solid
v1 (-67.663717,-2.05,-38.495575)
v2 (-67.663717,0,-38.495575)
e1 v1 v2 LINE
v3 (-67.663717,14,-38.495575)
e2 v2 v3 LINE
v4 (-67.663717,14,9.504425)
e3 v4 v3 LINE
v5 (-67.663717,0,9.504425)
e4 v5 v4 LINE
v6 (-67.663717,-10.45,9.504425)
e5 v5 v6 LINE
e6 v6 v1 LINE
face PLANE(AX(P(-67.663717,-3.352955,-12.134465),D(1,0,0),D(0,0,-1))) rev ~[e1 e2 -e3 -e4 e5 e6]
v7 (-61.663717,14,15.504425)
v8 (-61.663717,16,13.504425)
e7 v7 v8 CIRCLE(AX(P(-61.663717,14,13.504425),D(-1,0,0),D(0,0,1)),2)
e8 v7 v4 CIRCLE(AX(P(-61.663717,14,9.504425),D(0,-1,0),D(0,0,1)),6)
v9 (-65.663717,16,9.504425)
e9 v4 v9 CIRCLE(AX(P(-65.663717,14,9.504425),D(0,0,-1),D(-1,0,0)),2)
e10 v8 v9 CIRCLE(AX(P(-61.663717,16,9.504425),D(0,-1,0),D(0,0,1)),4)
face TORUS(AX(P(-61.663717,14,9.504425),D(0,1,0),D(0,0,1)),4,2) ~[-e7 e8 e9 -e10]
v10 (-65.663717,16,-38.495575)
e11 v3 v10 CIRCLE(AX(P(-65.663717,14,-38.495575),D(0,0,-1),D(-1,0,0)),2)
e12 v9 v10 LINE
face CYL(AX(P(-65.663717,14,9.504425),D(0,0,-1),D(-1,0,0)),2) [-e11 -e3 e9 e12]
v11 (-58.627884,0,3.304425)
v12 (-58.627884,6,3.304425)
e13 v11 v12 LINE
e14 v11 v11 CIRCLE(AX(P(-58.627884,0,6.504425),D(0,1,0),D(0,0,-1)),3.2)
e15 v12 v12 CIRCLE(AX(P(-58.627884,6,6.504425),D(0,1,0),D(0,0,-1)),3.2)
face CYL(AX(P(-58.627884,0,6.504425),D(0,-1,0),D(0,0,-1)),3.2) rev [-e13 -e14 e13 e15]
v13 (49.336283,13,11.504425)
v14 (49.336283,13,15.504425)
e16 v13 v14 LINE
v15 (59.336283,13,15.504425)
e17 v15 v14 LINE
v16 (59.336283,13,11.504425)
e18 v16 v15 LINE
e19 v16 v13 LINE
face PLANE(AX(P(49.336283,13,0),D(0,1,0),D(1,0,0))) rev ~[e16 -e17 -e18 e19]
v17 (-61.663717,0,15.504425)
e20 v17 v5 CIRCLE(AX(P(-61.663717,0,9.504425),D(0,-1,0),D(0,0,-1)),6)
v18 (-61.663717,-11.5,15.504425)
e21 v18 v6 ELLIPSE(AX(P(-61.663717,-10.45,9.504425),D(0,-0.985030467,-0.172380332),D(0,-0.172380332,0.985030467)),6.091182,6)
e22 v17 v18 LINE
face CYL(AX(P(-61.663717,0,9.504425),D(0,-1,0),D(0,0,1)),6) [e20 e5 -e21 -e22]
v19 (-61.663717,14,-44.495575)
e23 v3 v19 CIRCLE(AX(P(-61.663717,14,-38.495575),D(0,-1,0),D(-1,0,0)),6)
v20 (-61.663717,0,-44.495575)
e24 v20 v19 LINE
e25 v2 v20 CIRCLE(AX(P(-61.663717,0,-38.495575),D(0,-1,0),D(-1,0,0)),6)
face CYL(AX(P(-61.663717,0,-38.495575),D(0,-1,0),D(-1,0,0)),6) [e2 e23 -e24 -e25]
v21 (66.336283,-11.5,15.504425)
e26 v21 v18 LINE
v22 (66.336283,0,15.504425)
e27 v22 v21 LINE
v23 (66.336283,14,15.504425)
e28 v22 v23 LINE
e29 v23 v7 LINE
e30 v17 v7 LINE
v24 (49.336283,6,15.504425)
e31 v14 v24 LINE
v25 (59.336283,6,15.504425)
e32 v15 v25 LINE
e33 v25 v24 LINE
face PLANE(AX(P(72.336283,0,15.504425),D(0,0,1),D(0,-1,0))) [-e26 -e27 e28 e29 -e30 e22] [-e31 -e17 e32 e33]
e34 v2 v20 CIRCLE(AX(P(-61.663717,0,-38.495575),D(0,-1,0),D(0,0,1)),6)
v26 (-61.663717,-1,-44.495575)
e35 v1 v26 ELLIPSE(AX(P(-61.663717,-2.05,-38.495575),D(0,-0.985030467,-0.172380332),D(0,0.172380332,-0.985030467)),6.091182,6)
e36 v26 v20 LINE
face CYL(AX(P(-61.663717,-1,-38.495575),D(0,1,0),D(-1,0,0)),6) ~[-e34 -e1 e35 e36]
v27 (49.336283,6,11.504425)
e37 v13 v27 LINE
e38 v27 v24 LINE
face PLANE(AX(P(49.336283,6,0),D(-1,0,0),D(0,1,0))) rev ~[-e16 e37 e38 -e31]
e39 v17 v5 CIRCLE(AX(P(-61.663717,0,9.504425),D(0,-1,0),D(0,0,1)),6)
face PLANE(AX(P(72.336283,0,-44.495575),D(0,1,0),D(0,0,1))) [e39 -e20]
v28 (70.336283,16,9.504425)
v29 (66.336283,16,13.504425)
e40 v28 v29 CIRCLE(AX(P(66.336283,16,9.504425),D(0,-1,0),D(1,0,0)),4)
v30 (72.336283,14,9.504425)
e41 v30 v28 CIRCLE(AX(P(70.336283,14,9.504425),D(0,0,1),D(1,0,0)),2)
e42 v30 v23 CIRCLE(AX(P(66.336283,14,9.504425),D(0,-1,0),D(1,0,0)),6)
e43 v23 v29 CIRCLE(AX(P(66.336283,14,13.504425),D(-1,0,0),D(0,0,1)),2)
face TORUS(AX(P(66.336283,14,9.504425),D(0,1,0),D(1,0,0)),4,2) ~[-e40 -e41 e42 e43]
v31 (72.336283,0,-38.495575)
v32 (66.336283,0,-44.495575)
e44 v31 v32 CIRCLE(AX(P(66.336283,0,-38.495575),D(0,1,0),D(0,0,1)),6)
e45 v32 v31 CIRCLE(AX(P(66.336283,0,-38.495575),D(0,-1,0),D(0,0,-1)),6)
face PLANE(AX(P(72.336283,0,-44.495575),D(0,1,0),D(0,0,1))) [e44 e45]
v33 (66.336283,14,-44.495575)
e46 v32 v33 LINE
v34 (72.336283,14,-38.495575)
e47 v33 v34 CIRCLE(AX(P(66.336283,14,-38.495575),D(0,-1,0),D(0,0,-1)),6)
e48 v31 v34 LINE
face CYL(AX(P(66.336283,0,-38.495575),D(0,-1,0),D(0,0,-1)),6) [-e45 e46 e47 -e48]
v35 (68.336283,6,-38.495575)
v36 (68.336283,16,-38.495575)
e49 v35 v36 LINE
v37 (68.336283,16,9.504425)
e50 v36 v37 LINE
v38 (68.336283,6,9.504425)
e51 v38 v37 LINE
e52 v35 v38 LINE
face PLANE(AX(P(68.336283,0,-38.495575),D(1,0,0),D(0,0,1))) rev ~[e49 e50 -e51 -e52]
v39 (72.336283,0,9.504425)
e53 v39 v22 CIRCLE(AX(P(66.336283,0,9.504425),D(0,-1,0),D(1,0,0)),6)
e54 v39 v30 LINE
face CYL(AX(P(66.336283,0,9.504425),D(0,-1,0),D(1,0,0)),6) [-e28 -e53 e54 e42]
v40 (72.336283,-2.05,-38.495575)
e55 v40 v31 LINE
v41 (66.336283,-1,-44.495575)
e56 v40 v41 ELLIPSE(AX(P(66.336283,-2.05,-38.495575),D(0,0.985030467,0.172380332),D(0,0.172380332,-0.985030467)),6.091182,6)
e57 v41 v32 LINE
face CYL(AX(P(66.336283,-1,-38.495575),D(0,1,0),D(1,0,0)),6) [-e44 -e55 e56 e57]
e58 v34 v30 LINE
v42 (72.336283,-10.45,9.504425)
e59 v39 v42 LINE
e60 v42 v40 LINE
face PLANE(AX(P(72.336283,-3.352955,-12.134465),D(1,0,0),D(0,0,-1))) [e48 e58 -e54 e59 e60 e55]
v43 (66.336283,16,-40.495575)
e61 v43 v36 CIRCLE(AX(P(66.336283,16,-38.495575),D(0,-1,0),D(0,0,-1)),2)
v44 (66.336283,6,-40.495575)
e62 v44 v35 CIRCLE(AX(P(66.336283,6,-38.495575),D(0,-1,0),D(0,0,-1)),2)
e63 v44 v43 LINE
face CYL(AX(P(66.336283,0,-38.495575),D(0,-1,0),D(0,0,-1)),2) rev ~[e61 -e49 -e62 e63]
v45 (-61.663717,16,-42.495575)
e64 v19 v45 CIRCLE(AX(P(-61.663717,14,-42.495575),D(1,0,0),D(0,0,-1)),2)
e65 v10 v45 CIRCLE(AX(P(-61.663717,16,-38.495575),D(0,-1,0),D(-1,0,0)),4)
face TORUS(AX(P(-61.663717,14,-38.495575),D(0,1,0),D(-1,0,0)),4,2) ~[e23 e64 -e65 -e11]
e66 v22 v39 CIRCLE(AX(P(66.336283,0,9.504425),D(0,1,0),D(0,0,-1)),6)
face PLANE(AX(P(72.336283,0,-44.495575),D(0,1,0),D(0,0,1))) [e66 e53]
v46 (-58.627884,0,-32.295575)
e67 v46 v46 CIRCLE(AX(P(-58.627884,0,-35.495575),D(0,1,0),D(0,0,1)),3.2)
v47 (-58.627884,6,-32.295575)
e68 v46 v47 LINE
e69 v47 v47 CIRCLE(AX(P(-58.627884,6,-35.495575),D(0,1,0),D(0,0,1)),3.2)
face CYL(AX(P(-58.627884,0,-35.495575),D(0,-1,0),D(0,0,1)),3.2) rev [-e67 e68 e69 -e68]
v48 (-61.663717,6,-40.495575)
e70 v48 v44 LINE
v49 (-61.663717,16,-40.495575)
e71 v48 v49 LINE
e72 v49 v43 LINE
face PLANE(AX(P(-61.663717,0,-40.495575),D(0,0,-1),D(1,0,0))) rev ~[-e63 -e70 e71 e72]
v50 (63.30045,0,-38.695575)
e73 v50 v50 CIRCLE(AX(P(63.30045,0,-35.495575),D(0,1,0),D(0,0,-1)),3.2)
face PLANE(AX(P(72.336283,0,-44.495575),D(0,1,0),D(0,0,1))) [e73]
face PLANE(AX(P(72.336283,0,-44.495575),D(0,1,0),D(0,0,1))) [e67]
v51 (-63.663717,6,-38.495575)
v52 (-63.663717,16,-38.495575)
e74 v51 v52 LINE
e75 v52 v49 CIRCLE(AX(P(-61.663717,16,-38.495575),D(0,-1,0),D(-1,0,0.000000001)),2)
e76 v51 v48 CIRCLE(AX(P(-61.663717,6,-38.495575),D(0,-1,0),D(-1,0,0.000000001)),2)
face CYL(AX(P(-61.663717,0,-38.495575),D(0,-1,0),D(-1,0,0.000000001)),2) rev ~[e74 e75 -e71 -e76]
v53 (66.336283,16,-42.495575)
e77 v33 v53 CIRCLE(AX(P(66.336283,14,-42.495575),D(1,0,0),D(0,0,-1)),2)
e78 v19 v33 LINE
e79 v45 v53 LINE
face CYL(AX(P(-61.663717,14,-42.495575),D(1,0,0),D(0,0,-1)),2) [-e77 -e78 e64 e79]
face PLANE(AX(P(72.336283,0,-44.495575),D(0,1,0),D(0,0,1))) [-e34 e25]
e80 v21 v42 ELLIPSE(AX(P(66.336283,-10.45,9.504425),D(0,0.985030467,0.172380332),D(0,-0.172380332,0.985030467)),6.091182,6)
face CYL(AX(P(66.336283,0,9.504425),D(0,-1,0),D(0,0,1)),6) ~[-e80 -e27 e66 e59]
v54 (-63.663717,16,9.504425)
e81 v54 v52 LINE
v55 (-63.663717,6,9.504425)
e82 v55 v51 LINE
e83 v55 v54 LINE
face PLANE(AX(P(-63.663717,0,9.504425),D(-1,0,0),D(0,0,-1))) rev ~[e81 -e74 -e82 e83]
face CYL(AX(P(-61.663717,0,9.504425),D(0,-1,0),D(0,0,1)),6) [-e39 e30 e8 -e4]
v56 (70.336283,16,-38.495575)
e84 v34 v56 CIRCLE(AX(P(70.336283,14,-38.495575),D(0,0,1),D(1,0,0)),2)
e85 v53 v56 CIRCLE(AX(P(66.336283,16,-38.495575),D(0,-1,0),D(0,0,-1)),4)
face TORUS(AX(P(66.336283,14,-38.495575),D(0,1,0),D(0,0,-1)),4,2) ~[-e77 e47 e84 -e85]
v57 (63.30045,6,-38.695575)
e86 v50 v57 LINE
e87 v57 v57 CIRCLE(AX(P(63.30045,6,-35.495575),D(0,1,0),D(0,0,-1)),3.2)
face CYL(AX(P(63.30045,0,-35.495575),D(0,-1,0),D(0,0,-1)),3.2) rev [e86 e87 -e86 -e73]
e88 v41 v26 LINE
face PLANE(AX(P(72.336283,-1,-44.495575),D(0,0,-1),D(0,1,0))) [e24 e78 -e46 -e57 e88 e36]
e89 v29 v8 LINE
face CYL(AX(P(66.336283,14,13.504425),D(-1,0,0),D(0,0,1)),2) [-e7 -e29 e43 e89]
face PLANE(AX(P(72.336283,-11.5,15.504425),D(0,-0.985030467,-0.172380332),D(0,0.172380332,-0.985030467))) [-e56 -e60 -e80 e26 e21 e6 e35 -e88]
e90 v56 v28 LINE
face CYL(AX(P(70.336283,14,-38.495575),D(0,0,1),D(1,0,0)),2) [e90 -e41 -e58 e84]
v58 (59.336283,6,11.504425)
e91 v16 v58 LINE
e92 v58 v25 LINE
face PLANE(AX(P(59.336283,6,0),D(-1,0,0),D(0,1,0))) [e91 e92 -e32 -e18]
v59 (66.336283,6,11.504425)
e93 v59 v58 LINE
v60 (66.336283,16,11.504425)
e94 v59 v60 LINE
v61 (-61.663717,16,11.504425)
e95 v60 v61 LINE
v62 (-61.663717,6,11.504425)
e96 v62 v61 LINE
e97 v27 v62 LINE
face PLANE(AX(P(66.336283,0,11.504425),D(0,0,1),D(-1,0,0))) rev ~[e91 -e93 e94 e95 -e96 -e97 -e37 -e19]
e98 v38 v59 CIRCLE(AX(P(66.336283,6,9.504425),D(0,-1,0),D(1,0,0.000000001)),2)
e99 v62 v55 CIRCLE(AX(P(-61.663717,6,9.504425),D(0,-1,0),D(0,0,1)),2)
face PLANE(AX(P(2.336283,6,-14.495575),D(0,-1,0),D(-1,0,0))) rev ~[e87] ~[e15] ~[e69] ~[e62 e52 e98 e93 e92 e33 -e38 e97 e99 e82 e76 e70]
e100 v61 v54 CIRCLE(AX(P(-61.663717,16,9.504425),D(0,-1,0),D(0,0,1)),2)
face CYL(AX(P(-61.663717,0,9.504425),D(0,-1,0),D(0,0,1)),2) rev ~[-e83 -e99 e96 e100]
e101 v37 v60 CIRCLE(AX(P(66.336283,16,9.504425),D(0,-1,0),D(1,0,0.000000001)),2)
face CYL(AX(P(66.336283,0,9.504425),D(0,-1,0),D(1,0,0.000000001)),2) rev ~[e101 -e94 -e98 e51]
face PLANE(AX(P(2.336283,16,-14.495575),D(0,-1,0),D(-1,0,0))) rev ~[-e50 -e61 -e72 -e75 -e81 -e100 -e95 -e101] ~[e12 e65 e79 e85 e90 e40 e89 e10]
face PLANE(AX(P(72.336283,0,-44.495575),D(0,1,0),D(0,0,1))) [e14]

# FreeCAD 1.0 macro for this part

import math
import FreeCAD as App
import Part
import Sketcher


def edges_at(feature, points):
    """Names of the edges that pass closest to the given points."""
    edges = feature.Shape.Edges
    near = lambda p: min(range(len(edges)), key=lambda i: edges[i].distToShape(Part.Vertex(*p))[0])
    return sorted({f"Edge{near(p) + 1}" for p in points})

doc = App.newDocument("Part")
params = doc.addObject("Spreadsheet::Sheet", "Params")
for row, (alias, value) in enumerate([
    ("sketch1_radius", "6 mm"),
    ("sketch1_radius2", "2 mm"),
    ("sketch1_width", "128 mm"),
    ("sketch1_height", "48 mm"),
    ("pad1_length", "16 mm"),
    ("sketch2_radius", "2 mm"),
    ("sketch2_diameter", "6.4 mm"),
    ("sketch2_width", "128 mm"),
    ("sketch2_height", "48 mm"),
    ("pad2_length", "6 mm"),
    ("sketch3_width", "10 mm"),
    ("sketch3_height", "7 mm"),
    ("pocket1_length", "28 mm"),
    ("fillet_radius", "2 mm"),
    ("sketch4_width", "1 mm"),
    ("sketch4_height", "60 mm"),
    ("sketch4_width2", "11.5 mm"),
    ("pad3_length", "140 mm"),
    ("fillet2_radius", "6 mm"),
], start=1):
    params.set(f"A{row}", alias)
    params.set(f"B{row}", "=" + value)
    params.setAlias(f"B{row}", alias)

body = doc.addObject("PartDesign::Body", "Body")

# Sketch on XZ plane
sketch1 = body.newObject("Sketcher::SketchObject", "Sketch")
sketch1.AttachmentSupport = (doc.getObject("XZ_Plane"), [""])
sketch1.MapMode = "FlatFace"
sketch1.addGeometry(Part.LineSegment(App.Vector(66.3, -44.5, 0), App.Vector(-61.7, -44.5, 0)), False)
sketch1.addGeometry(Part.ArcOfCircle(Part.Circle(App.Vector(-61.7, -38.5, 0), App.Vector(0, 0, 1), 6), math.radians(180), math.radians(270)), False)
sketch1.addGeometry(Part.LineSegment(App.Vector(-67.7, -38.5, 0), App.Vector(-67.7, 9.5, 0)), False)
sketch1.addGeometry(Part.ArcOfCircle(Part.Circle(App.Vector(-61.7, 9.5, 0), App.Vector(0, 0, 1), 6), math.radians(90), math.radians(180)), False)
sketch1.addGeometry(Part.LineSegment(App.Vector(-61.7, 15.5, 0), App.Vector(66.3, 15.5, 0)), False)
sketch1.addGeometry(Part.ArcOfCircle(Part.Circle(App.Vector(66.3, 9.5, 0), App.Vector(0, 0, 1), 6), math.radians(0), math.radians(90)), False)
sketch1.addGeometry(Part.LineSegment(App.Vector(72.3, 9.5, 0), App.Vector(72.3, -38.5, 0)), False)
sketch1.addGeometry(Part.ArcOfCircle(Part.Circle(App.Vector(66.3, -38.5, 0), App.Vector(0, 0, 1), 6), math.radians(-90), math.radians(0)), False)
sketch1.addGeometry(Part.LineSegment(App.Vector(-61.7, -40.5, 0), App.Vector(66.3, -40.5, 0)), False)
sketch1.addGeometry(Part.ArcOfCircle(Part.Circle(App.Vector(66.3, -38.5, 0), App.Vector(0, 0, 1), 2), math.radians(-90), math.radians(0)), False)
sketch1.addGeometry(Part.LineSegment(App.Vector(68.3, -38.5, 0), App.Vector(68.3, 9.5, 0)), False)
sketch1.addGeometry(Part.ArcOfCircle(Part.Circle(App.Vector(66.3, 9.5, 0), App.Vector(0, 0, 1), 2), math.radians(0), math.radians(90)), False)
sketch1.addGeometry(Part.LineSegment(App.Vector(66.3, 11.5, 0), App.Vector(-61.7, 11.5, 0)), False)
sketch1.addGeometry(Part.ArcOfCircle(Part.Circle(App.Vector(-61.7, 9.5, 0), App.Vector(0, 0, 1), 2), math.radians(90), math.radians(180)), False)
sketch1.addGeometry(Part.LineSegment(App.Vector(-63.7, 9.5, 0), App.Vector(-63.7, -38.5, 0)), False)
sketch1.addGeometry(Part.ArcOfCircle(Part.Circle(App.Vector(-61.7, -38.5, 0), App.Vector(0, 0, 1), 2), math.radians(180), math.radians(270)), False)
sketch1.addConstraint(Sketcher.Constraint("Tangent", 0, 2, 1, 2))
sketch1.addConstraint(Sketcher.Constraint("Tangent", 1, 1, 2, 1))
sketch1.addConstraint(Sketcher.Constraint("Tangent", 2, 2, 3, 2))
sketch1.addConstraint(Sketcher.Constraint("Tangent", 3, 1, 4, 1))
sketch1.addConstraint(Sketcher.Constraint("Tangent", 4, 2, 5, 2))
sketch1.addConstraint(Sketcher.Constraint("Tangent", 5, 1, 6, 1))
sketch1.addConstraint(Sketcher.Constraint("Tangent", 6, 2, 7, 2))
sketch1.addConstraint(Sketcher.Constraint("Tangent", 7, 1, 0, 1))
sketch1.addConstraint(Sketcher.Constraint("Tangent", 8, 2, 9, 1))
sketch1.addConstraint(Sketcher.Constraint("Tangent", 9, 2, 10, 1))
sketch1.addConstraint(Sketcher.Constraint("Tangent", 10, 2, 11, 1))
sketch1.addConstraint(Sketcher.Constraint("Tangent", 11, 2, 12, 1))
sketch1.addConstraint(Sketcher.Constraint("Tangent", 12, 2, 13, 1))
sketch1.addConstraint(Sketcher.Constraint("Tangent", 13, 2, 14, 1))
sketch1.addConstraint(Sketcher.Constraint("Tangent", 14, 2, 15, 1))
sketch1.addConstraint(Sketcher.Constraint("Tangent", 15, 2, 8, 1))
sketch1.addConstraint(Sketcher.Constraint("Horizontal", 0))
sketch1.addConstraint(Sketcher.Constraint("Vertical", 2))
sketch1.addConstraint(Sketcher.Constraint("Horizontal", 4))
sketch1.addConstraint(Sketcher.Constraint("Vertical", 6))
sketch1.addConstraint(Sketcher.Constraint("Horizontal", 8))
sketch1.addConstraint(Sketcher.Constraint("Vertical", 10))
sketch1.addConstraint(Sketcher.Constraint("Horizontal", 12))
sketch1.addConstraint(Sketcher.Constraint("Vertical", 14))
sketch1.addConstraint(Sketcher.Constraint("Coincident", 9, 3, 7, 3))
sketch1.addConstraint(Sketcher.Constraint("Coincident", 11, 3, 5, 3))
sketch1.addConstraint(Sketcher.Constraint("Coincident", 13, 3, 3, 3))
sketch1.addConstraint(Sketcher.Constraint("Equal", 1, 3))
sketch1.addConstraint(Sketcher.Constraint("Equal", 3, 5))
sketch1.addConstraint(Sketcher.Constraint("Equal", 5, 7))
sketch1.addConstraint(Sketcher.Constraint("Equal", 13, 15))
sketch1.addConstraint(Sketcher.Constraint("Radius", 1, 6.0))
sketch1.addConstraint(Sketcher.Constraint("Radius", 9, 2.0))
sketch1.addConstraint(Sketcher.Constraint("DistanceX", 0, 2, 0, 1, 128.0))
sketch1.addConstraint(Sketcher.Constraint("DistanceY", 2, 1, 2, 2, 48.0))
sketch1.addConstraint(Sketcher.Constraint("DistanceX", 1, 3, -1, 1, 61.663717))
sketch1.addConstraint(Sketcher.Constraint("DistanceY", 1, 3, -1, 1, 38.495575))
sketch1.setExpression("Constraints[31]", "Params.sketch1_radius")
sketch1.setExpression("Constraints[32]", "Params.sketch1_radius2")
sketch1.setExpression("Constraints[33]", "Params.sketch1_width")
sketch1.setExpression("Constraints[34]", "Params.sketch1_height")
pad1 = body.newObject("PartDesign::Pad", "Pad")
pad1.Profile = sketch1
pad1.setExpression("Length", "Params.pad1_length")
pad1.Reversed = True

# Sketch on XZ plane
sketch2 = body.newObject("Sketcher::SketchObject", "Sketch001")
sketch2.AttachmentSupport = (doc.getObject("XZ_Plane"), [""])
sketch2.MapMode = "FlatFace"
sketch2.addGeometry(Part.LineSegment(App.Vector(66.3, -40.5, 0), App.Vector(-61.7, -40.5, 0)), False)
sketch2.addGeometry(Part.ArcOfCircle(Part.Circle(App.Vector(-61.7, -38.5, 0), App.Vector(0, 0, 1), 2), math.radians(180), math.radians(270)), False)
sketch2.addGeometry(Part.LineSegment(App.Vector(-63.7, -38.5, 0), App.Vector(-63.7, 9.5, 0)), False)
sketch2.addGeometry(Part.ArcOfCircle(Part.Circle(App.Vector(-61.7, 9.5, 0), App.Vector(0, 0, 1), 2), math.radians(90), math.radians(180)), False)
sketch2.addGeometry(Part.LineSegment(App.Vector(-61.7, 11.5, 0), App.Vector(66.3, 11.5, 0)), False)
sketch2.addGeometry(Part.ArcOfCircle(Part.Circle(App.Vector(66.3, 9.5, 0), App.Vector(0, 0, 1), 2), math.radians(0), math.radians(90)), False)
sketch2.addGeometry(Part.LineSegment(App.Vector(68.3, 9.5, 0), App.Vector(68.3, -38.5, 0)), False)
sketch2.addGeometry(Part.ArcOfCircle(Part.Circle(App.Vector(66.3, -38.5, 0), App.Vector(0, 0, 1), 2), math.radians(-90), math.radians(0)), False)
sketch2.addGeometry(Part.Circle(App.Vector(-58.6, 6.5, 0), App.Vector(0, 0, 1), 3.2), False)
sketch2.addGeometry(Part.Circle(App.Vector(63.3, -35.5, 0), App.Vector(0, 0, 1), 3.2), False)
sketch2.addGeometry(Part.Circle(App.Vector(-58.6, -35.5, 0), App.Vector(0, 0, 1), 3.2), False)
sketch2.addConstraint(Sketcher.Constraint("Tangent", 0, 2, 1, 2))
sketch2.addConstraint(Sketcher.Constraint("Tangent", 1, 1, 2, 1))
sketch2.addConstraint(Sketcher.Constraint("Tangent", 2, 2, 3, 2))
sketch2.addConstraint(Sketcher.Constraint("Tangent", 3, 1, 4, 1))
sketch2.addConstraint(Sketcher.Constraint("Tangent", 4, 2, 5, 2))
sketch2.addConstraint(Sketcher.Constraint("Tangent", 5, 1, 6, 1))
sketch2.addConstraint(Sketcher.Constraint("Tangent", 6, 2, 7, 2))
sketch2.addConstraint(Sketcher.Constraint("Tangent", 7, 1, 0, 1))
sketch2.addConstraint(Sketcher.Constraint("Horizontal", 0))
sketch2.addConstraint(Sketcher.Constraint("Vertical", 2))
sketch2.addConstraint(Sketcher.Constraint("Horizontal", 4))
sketch2.addConstraint(Sketcher.Constraint("Vertical", 6))
sketch2.addConstraint(Sketcher.Constraint("Equal", 1, 3))
sketch2.addConstraint(Sketcher.Constraint("Equal", 3, 5))
sketch2.addConstraint(Sketcher.Constraint("Equal", 5, 7))
sketch2.addConstraint(Sketcher.Constraint("Equal", 8, 9))
sketch2.addConstraint(Sketcher.Constraint("Equal", 9, 10))
sketch2.addConstraint(Sketcher.Constraint("Horizontal", 9, 3, 10, 3))
sketch2.addConstraint(Sketcher.Constraint("Vertical", 8, 3, 10, 3))
sketch2.addConstraint(Sketcher.Constraint("Radius", 1, 2.0))
sketch2.addConstraint(Sketcher.Constraint("Diameter", 8, 6.4))
sketch2.addConstraint(Sketcher.Constraint("DistanceX", 0, 2, 0, 1, 128.0))
sketch2.addConstraint(Sketcher.Constraint("DistanceY", 2, 1, 2, 2, 48.0))
sketch2.addConstraint(Sketcher.Constraint("DistanceY", 8, 3, 3, 3, 3.0))
sketch2.addConstraint(Sketcher.Constraint("DistanceY", 7, 3, 9, 3, 3.0))
sketch2.addConstraint(Sketcher.Constraint("DistanceX", -1, 1, 9, 3, 63.30045))
sketch2.addConstraint(Sketcher.Constraint("DistanceX", 1, 3, -1, 1, 61.663717))
sketch2.addConstraint(Sketcher.Constraint("DistanceY", 1, 3, -1, 1, 38.495575))
sketch2.addConstraint(Sketcher.Constraint("DistanceX", 8, 3, -1, 1, 58.627884))
sketch2.setExpression("Constraints[19]", "Params.sketch2_radius")
sketch2.setExpression("Constraints[20]", "Params.sketch2_diameter")
sketch2.setExpression("Constraints[21]", "Params.sketch2_width")
sketch2.setExpression("Constraints[22]", "Params.sketch2_height")
pad2 = body.newObject("PartDesign::Pad", "Pad001")
pad2.Profile = sketch2
pad2.setExpression("Length", "Params.pad2_length")
pad2.Reversed = True

# Sketch on XY plane
sketch3 = body.newObject("Sketcher::SketchObject", "Sketch002")
sketch3.AttachmentSupport = (doc.getObject("XY_Plane"), [""])
sketch3.MapMode = "FlatFace"
sketch3.addGeometry(Part.LineSegment(App.Vector(49, 13, 0), App.Vector(49, 6, 0)), False)
sketch3.addGeometry(Part.LineSegment(App.Vector(49, 6, 0), App.Vector(59, 6, 0)), False)
sketch3.addGeometry(Part.LineSegment(App.Vector(59, 6, 0), App.Vector(59, 13, 0)), False)
sketch3.addGeometry(Part.LineSegment(App.Vector(59, 13, 0), App.Vector(49, 13, 0)), False)
sketch3.addConstraint(Sketcher.Constraint("Coincident", 0, 2, 1, 1))
sketch3.addConstraint(Sketcher.Constraint("Coincident", 1, 2, 2, 1))
sketch3.addConstraint(Sketcher.Constraint("Coincident", 2, 2, 3, 1))
sketch3.addConstraint(Sketcher.Constraint("Coincident", 3, 2, 0, 1))
sketch3.addConstraint(Sketcher.Constraint("Vertical", 0))
sketch3.addConstraint(Sketcher.Constraint("Horizontal", 1))
sketch3.addConstraint(Sketcher.Constraint("Vertical", 2))
sketch3.addConstraint(Sketcher.Constraint("Horizontal", 3))
sketch3.addConstraint(Sketcher.Constraint("DistanceX", 1, 1, 1, 2, 10.0))
sketch3.addConstraint(Sketcher.Constraint("DistanceY", 0, 2, 0, 1, 7.0))
sketch3.addConstraint(Sketcher.Constraint("DistanceY", -1, 1, 0, 2, 6.0))
sketch3.addConstraint(Sketcher.Constraint("DistanceX", -1, 1, 0, 2, 49.336283))
sketch3.setExpression("Constraints[8]", "Params.sketch3_width")
sketch3.setExpression("Constraints[9]", "Params.sketch3_height")
pocket1 = body.newObject("PartDesign::Pocket", "Pocket")
pocket1.Profile = sketch3
pocket1.setExpression("Length", "Params.pocket1_length")
pocket1.Reversed = True
doc.recompute()

fillet = body.newObject("PartDesign::Fillet", "Fillet")
fillet.Base = (pocket1, edges_at(pocket1, [
    (-65.906, 16, -42.738),
    (-67.664, 16, -14.496),
    (-65.906, 16, 13.747),
    (2.336, 16, 15.504),
    (70.579, 16, 13.747),
    (72.336, 16, -14.496),
    (70.579, 16, -42.738),
    (2.336, 16, -44.496),
]))
fillet.setExpression("Radius", "Params.fillet_radius")

# Sketch on YZ plane
sketch4 = body.newObject("Sketcher::SketchObject", "Sketch003")
sketch4.AttachmentSupport = (doc.getObject("YZ_Plane"), [""])
sketch4.MapMode = "FlatFace"
sketch4.AttachmentOffset = App.Placement(App.Vector(0, 0, 72.336283), App.Rotation())
sketch4.addGeometry(Part.LineSegment(App.Vector(0, 15.5, 0), App.Vector(-11.5, 15.5, 0)), False)
sketch4.addGeometry(Part.LineSegment(App.Vector(-11.5, 15.5, 0), App.Vector(-1, -44.5, 0)), False)
sketch4.addGeometry(Part.LineSegment(App.Vector(-1, -44.5, 0), App.Vector(0, -44.5, 0)), False)
sketch4.addGeometry(Part.LineSegment(App.Vector(0, -44.5, 0), App.Vector(0, 15.5, 0)), False)
sketch4.addConstraint(Sketcher.Constraint("Coincident", 0, 2, 1, 1))
sketch4.addConstraint(Sketcher.Constraint("Coincident", 1, 2, 2, 1))
sketch4.addConstraint(Sketcher.Constraint("Coincident", 2, 2, 3, 1))
sketch4.addConstraint(Sketcher.Constraint("Coincident", 3, 2, 0, 1))
sketch4.addConstraint(Sketcher.Constraint("Horizontal", 0))
sketch4.addConstraint(Sketcher.Constraint("Horizontal", 2))
sketch4.addConstraint(Sketcher.Constraint("Vertical", 3))
sketch4.addConstraint(Sketcher.Constraint("PointOnObject", 2, 2, -2))
sketch4.addConstraint(Sketcher.Constraint("DistanceX", 2, 1, 2, 2, 1.0))
sketch4.addConstraint(Sketcher.Constraint("DistanceY", 3, 1, 3, 2, 60.0))
sketch4.addConstraint(Sketcher.Constraint("DistanceX", 0, 2, 0, 1, 11.5))
sketch4.addConstraint(Sketcher.Constraint("DistanceY", -1, 1, 0, 2, 15.504425))
sketch4.setExpression("Constraints[8]", "Params.sketch4_width")
sketch4.setExpression("Constraints[9]", "Params.sketch4_height")
sketch4.setExpression("Constraints[10]", "Params.sketch4_width2")
pad3 = body.newObject("PartDesign::Pad", "Pad002")
pad3.Profile = sketch4
pad3.setExpression("Length", "Params.pad3_length")
pad3.Reversed = True
doc.recompute()

fillet2 = body.newObject("PartDesign::Fillet", "Fillet001")
fillet2.Base = (pad3, edges_at(pad3, [
    (-67.664, -5.75, 15.504),
    (72.336, -5.75, 15.504),
    (-67.664, -0.5, -44.496),
    (72.336, -0.5, -44.496),
]))
fillet2.setExpression("Radius", "Params.fillet2_radius")

doc.recompute()
